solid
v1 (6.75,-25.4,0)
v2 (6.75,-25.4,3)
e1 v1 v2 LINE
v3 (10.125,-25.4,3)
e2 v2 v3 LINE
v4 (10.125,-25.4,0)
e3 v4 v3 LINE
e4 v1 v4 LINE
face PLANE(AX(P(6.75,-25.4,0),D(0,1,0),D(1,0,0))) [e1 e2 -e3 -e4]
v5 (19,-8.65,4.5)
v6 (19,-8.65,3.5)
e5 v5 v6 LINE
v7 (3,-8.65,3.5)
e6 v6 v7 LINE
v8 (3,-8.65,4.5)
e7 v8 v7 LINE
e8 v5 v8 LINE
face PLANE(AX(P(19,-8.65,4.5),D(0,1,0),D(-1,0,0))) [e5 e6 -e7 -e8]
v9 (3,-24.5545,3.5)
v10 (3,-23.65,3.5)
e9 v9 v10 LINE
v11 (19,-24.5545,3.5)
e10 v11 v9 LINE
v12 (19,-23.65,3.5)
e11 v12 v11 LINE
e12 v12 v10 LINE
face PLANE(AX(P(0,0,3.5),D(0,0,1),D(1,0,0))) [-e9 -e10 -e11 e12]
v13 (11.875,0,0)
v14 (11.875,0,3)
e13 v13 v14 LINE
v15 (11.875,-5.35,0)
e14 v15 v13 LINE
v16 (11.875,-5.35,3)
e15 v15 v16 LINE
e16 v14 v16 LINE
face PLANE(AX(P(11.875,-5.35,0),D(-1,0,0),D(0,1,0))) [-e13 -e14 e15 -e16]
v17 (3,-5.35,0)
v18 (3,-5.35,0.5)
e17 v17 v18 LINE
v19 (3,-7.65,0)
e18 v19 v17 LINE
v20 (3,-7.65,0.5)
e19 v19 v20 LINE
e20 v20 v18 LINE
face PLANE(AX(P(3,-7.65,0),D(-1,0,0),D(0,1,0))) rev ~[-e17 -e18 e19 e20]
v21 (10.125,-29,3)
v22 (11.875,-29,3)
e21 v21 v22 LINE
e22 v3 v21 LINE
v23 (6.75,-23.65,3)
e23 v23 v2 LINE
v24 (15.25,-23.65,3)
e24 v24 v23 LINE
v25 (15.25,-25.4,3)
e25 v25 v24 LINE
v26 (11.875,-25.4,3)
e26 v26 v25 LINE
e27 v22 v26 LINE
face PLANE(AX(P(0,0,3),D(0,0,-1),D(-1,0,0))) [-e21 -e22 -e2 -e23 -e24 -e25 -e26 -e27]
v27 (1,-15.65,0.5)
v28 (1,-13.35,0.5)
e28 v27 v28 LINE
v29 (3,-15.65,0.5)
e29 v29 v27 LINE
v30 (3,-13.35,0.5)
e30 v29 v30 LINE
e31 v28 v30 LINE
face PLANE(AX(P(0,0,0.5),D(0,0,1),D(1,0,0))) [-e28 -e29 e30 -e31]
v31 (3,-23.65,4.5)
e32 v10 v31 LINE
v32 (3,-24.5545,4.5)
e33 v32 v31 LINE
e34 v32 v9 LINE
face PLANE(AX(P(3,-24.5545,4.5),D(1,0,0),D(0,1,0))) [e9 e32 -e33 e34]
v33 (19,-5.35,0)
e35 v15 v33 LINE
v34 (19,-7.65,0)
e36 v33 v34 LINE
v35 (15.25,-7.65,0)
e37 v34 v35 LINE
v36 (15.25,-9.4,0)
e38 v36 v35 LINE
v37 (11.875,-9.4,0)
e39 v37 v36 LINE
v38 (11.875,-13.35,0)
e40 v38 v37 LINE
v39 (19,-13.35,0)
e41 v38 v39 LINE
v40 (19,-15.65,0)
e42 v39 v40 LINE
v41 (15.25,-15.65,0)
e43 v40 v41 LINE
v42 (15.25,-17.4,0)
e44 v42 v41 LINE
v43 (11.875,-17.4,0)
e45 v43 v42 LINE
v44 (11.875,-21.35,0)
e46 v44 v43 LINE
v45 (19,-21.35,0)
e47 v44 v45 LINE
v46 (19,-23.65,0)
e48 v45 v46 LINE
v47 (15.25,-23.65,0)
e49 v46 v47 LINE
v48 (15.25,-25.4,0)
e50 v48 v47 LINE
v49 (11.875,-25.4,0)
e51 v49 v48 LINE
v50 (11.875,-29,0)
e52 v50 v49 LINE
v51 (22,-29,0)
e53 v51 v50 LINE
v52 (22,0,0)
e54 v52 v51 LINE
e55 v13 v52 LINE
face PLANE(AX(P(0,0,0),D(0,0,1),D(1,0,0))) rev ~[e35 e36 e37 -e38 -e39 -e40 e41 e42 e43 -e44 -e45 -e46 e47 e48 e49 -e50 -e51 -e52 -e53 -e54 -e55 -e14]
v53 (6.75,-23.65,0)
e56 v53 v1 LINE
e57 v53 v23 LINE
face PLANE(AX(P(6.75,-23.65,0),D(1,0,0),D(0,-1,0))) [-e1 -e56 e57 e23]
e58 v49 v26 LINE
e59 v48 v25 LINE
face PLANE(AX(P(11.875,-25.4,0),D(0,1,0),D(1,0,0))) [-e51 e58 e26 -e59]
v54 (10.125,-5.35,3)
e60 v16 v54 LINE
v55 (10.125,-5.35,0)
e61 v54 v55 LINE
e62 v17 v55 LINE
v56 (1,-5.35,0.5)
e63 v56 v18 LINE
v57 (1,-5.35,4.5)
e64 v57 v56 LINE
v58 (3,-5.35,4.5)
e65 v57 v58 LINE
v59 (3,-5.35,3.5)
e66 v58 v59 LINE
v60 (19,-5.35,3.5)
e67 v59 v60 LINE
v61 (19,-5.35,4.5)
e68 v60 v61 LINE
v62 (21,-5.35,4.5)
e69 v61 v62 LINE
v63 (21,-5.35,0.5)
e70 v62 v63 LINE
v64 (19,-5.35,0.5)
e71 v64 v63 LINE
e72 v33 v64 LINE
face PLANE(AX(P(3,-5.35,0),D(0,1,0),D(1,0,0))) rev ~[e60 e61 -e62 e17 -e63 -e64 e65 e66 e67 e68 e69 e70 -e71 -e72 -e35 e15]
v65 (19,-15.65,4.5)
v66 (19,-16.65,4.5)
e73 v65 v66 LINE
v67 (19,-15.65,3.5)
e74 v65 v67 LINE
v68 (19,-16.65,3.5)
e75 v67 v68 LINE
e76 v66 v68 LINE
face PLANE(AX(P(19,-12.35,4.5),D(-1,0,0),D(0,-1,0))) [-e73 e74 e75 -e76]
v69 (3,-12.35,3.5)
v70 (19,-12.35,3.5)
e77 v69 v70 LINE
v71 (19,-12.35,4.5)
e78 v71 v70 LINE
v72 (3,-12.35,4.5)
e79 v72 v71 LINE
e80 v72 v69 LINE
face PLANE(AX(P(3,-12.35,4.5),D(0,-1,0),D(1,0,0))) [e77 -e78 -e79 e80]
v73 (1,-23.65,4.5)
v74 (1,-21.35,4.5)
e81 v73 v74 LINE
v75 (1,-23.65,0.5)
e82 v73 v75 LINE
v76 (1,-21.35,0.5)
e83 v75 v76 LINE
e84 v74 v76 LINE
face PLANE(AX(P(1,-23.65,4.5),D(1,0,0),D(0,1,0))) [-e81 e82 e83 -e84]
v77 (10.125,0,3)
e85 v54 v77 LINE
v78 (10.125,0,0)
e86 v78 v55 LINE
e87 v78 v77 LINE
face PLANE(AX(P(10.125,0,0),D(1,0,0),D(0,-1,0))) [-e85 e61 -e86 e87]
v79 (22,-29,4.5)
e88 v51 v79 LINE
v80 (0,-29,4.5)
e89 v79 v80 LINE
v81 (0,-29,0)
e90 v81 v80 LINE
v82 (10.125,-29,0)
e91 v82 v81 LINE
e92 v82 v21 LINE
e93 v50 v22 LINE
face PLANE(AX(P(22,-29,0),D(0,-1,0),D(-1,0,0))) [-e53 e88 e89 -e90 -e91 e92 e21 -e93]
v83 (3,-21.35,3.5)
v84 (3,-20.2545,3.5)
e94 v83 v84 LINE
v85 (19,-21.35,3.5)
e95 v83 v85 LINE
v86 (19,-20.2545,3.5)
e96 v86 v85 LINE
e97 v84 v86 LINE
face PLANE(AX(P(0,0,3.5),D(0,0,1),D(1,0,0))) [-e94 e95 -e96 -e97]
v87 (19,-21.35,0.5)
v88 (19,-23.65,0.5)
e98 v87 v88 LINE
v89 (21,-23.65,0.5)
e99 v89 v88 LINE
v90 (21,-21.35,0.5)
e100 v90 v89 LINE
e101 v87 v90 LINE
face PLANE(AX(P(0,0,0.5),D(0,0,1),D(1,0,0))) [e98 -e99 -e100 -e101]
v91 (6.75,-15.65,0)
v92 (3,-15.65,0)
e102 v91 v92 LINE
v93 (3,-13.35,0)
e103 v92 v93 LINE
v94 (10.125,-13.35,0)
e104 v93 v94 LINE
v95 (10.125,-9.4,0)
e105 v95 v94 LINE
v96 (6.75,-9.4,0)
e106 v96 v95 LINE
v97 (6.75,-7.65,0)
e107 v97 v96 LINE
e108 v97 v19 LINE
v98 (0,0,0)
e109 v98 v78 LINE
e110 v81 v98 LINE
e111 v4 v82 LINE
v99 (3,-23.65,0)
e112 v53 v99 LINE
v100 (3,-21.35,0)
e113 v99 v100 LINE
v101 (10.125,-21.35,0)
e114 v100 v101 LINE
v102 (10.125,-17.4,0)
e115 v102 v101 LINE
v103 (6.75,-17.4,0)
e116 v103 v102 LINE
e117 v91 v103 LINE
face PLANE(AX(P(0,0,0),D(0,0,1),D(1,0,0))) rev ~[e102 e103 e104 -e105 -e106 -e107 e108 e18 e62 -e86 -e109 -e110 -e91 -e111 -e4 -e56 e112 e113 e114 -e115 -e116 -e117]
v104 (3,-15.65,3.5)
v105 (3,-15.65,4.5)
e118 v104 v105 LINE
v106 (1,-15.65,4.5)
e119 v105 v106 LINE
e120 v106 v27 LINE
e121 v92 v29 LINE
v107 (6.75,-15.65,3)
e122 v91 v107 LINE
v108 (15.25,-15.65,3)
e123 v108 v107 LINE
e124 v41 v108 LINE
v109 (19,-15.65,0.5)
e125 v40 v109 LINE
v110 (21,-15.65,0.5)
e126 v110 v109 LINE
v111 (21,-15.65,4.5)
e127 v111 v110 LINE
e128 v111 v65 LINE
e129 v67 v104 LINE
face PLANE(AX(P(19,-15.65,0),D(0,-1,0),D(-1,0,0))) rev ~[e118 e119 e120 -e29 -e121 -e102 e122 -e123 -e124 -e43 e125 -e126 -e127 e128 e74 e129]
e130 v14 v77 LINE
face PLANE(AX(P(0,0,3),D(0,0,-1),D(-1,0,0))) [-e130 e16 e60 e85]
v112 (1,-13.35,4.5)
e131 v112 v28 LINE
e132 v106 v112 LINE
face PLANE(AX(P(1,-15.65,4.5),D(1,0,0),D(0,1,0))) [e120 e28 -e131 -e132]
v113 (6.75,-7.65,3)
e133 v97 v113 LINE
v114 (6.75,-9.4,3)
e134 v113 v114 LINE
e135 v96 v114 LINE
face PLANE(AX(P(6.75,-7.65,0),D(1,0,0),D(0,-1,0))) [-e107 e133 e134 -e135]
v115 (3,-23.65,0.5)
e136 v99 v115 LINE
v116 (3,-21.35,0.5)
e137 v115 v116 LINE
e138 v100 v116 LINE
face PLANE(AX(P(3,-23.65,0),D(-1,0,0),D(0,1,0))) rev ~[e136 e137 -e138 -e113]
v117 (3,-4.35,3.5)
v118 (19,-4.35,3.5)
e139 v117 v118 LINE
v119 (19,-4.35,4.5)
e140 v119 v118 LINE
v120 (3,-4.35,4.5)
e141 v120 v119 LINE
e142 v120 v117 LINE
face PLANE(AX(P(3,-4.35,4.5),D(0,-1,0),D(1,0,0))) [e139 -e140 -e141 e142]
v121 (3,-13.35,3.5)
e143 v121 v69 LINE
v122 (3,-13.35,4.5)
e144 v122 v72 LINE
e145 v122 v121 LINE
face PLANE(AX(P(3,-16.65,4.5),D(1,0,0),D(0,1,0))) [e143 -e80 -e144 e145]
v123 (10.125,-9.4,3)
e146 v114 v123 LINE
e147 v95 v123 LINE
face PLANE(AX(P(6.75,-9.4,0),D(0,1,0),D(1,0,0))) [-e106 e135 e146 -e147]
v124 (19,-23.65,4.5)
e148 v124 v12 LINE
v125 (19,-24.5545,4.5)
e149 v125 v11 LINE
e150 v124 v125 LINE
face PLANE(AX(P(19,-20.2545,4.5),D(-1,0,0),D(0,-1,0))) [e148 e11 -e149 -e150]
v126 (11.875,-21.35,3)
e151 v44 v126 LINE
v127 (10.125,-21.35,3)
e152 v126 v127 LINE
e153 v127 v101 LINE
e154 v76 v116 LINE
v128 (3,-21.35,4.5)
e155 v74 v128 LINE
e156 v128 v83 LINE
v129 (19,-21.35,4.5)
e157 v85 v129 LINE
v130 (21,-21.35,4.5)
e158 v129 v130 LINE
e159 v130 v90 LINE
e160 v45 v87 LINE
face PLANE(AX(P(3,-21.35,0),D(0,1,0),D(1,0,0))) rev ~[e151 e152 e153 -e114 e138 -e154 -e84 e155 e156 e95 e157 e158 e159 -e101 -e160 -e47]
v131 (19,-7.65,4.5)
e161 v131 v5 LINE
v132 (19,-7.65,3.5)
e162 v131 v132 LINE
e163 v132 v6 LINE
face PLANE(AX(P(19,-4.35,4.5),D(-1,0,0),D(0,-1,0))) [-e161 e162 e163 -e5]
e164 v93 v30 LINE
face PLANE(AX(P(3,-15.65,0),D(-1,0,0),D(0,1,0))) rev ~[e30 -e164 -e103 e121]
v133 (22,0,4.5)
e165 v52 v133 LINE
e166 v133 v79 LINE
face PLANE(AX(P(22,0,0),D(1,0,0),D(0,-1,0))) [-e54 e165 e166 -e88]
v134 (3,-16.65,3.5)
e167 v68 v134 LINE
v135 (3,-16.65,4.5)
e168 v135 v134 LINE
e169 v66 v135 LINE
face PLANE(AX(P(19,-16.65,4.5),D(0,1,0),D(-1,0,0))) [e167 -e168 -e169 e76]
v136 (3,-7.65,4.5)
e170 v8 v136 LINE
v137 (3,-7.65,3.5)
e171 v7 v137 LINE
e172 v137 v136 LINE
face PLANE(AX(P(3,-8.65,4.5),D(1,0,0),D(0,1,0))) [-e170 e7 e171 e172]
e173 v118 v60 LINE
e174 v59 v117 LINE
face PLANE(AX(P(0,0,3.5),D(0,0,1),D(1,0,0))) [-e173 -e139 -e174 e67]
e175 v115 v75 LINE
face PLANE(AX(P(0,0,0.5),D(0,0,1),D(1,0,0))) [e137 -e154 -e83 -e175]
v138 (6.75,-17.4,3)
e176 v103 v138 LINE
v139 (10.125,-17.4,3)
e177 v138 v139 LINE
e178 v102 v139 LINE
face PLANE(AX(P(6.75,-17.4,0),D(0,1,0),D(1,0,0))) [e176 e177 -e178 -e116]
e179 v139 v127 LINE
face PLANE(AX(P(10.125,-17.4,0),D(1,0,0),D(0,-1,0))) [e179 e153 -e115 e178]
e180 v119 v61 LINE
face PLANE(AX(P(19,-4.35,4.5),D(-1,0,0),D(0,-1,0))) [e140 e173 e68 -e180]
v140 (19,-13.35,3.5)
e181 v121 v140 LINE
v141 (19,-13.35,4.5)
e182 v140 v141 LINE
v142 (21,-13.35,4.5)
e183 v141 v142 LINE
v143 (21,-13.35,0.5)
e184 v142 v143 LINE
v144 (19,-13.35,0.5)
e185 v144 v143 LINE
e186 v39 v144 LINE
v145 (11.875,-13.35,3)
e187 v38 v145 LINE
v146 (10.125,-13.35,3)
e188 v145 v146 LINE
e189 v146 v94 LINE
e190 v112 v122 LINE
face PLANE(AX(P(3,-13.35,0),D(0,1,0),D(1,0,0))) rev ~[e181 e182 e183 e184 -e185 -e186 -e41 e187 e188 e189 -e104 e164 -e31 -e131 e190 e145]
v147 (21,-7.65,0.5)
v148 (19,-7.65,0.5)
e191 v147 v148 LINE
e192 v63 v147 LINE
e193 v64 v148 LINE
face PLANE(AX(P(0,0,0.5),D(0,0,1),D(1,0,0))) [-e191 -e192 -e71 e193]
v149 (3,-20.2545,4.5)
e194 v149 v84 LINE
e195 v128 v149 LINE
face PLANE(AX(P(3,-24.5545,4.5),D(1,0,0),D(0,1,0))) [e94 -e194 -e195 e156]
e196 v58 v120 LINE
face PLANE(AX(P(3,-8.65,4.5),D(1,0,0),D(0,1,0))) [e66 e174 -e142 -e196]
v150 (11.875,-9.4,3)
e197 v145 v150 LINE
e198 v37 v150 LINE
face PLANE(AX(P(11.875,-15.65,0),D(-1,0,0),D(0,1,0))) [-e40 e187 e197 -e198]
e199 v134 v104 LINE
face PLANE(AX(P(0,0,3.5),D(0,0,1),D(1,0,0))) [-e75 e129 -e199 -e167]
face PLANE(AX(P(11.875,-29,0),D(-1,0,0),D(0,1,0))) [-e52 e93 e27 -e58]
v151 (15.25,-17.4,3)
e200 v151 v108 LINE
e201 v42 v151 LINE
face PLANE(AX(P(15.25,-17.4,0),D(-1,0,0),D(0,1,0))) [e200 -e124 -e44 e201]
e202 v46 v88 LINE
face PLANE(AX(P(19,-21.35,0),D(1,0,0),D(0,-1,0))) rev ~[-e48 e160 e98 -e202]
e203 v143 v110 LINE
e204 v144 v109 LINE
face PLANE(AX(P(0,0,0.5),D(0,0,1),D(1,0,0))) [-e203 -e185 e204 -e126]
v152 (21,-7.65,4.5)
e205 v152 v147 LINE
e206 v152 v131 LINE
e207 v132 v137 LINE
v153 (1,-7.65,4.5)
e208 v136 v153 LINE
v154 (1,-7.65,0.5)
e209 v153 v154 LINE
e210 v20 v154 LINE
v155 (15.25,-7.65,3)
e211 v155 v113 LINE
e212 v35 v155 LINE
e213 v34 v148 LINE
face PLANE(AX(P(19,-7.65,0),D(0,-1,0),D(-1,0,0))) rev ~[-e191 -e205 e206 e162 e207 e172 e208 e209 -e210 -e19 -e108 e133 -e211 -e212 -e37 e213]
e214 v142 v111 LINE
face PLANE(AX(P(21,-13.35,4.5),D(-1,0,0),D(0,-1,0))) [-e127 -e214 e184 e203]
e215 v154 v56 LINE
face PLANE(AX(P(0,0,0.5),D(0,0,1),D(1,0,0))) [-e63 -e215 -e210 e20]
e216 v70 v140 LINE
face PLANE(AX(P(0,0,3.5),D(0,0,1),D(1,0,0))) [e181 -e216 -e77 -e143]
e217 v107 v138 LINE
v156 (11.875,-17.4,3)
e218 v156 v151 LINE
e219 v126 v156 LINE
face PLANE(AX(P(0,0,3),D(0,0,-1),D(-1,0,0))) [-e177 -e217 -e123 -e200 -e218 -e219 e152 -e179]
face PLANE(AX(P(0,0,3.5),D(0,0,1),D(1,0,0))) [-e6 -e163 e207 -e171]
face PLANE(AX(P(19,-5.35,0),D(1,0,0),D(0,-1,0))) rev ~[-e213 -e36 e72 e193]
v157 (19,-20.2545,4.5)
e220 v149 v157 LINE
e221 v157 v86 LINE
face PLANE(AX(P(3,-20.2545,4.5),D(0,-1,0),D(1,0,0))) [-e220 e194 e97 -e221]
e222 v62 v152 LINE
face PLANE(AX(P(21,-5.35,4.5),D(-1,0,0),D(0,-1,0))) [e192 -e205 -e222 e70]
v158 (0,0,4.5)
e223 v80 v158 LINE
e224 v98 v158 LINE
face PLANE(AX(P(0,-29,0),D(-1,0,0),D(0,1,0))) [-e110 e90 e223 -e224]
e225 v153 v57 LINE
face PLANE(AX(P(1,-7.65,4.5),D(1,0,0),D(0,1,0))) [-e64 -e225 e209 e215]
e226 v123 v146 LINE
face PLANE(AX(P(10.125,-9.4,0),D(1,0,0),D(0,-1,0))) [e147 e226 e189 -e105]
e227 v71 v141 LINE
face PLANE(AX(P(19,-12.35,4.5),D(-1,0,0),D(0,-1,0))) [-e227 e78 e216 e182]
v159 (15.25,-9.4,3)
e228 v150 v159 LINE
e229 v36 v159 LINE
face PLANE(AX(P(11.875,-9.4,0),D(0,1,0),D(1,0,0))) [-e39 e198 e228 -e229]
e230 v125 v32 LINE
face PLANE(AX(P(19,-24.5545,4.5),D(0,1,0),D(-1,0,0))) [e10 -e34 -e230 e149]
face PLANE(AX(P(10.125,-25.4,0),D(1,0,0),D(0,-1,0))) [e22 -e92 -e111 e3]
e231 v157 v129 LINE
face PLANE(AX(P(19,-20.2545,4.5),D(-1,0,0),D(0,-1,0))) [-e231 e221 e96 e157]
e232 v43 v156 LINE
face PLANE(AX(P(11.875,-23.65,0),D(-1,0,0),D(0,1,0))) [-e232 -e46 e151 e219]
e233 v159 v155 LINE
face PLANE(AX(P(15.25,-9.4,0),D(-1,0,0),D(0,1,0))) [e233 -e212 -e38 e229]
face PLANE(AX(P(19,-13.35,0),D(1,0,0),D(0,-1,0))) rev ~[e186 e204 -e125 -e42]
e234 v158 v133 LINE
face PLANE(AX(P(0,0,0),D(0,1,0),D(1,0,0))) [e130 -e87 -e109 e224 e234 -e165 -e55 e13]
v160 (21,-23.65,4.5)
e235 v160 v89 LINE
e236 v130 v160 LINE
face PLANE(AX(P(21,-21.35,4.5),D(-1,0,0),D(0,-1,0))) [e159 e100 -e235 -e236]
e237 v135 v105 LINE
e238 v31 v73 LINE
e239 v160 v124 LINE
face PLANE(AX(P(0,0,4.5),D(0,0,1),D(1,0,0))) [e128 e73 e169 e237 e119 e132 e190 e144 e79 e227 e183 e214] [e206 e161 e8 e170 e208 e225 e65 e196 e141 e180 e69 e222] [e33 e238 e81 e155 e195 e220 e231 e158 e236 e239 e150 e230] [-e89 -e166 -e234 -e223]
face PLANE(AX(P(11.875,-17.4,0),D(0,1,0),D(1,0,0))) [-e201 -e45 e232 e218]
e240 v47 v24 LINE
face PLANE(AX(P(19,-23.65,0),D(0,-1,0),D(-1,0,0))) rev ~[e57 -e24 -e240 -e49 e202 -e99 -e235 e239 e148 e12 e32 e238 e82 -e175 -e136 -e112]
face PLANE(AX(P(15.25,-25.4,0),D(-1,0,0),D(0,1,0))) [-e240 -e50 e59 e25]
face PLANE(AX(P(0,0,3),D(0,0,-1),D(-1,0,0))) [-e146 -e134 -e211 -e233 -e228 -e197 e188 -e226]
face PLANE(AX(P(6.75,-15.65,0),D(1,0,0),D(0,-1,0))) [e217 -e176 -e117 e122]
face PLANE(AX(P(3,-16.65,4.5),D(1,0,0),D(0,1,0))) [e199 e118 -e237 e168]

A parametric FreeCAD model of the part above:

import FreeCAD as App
import Part
import Sketcher
from FreeCAD import Vector

doc = App.newDocument("Part")
body = doc.addObject("PartDesign::Body", "Body")

sketch1 = body.newObject("Sketcher::SketchObject", "Sketch")
sketch1.AttachmentSupport = (doc.getObject("XY_Plane"), [""])
sketch1.MapMode = "FlatFace"
sketch1.addGeometry(Part.LineSegment(Vector(22, 0, 0), Vector(0, 0, 0)), False)
sketch1.addGeometry(Part.LineSegment(Vector(0, 0, 0), Vector(0, -29, 0)), False)
sketch1.addGeometry(Part.LineSegment(Vector(0, -29, 0), Vector(22, -29, 0)), False)
sketch1.addGeometry(Part.LineSegment(Vector(22, -29, 0), Vector(22, 0, 0)), False)
sketch1.addGeometry(Part.LineSegment(Vector(3, -23.6, 0), Vector(3, -21.4, 0)), False)
sketch1.addGeometry(Part.LineSegment(Vector(3, -21.4, 0), Vector(19, -21.4, 0)), False)
sketch1.addGeometry(Part.LineSegment(Vector(19, -21.4, 0), Vector(19, -23.6, 0)), False)
sketch1.addGeometry(Part.LineSegment(Vector(19, -23.6, 0), Vector(3, -23.6, 0)), False)
sketch1.addGeometry(Part.LineSegment(Vector(3, -15.7, 0), Vector(3, -13.3, 0)), False)
sketch1.addGeometry(Part.LineSegment(Vector(3, -13.3, 0), Vector(19, -13.3, 0)), False)
sketch1.addGeometry(Part.LineSegment(Vector(19, -13.3, 0), Vector(19, -15.7, 0)), False)
sketch1.addGeometry(Part.LineSegment(Vector(19, -15.7, 0), Vector(3, -15.7, 0)), False)
sketch1.addGeometry(Part.LineSegment(Vector(3, -7.7, 0), Vector(3, -5.3, 0)), False)
sketch1.addGeometry(Part.LineSegment(Vector(3, -5.3, 0), Vector(19, -5.3, 0)), False)
sketch1.addGeometry(Part.LineSegment(Vector(19, -5.3, 0), Vector(19, -7.7, 0)), False)
sketch1.addGeometry(Part.LineSegment(Vector(19, -7.7, 0), Vector(3, -7.7, 0)), False)
sketch1.addConstraint(Sketcher.Constraint("Coincident", 0, 2, 1, 1))
sketch1.addConstraint(Sketcher.Constraint("Coincident", 1, 2, 2, 1))
sketch1.addConstraint(Sketcher.Constraint("Coincident", 2, 2, 3, 1))
sketch1.addConstraint(Sketcher.Constraint("Coincident", 3, 2, 0, 1))
sketch1.addConstraint(Sketcher.Constraint("Coincident", 4, 2, 5, 1))
sketch1.addConstraint(Sketcher.Constraint("Coincident", 5, 2, 6, 1))
sketch1.addConstraint(Sketcher.Constraint("Coincident", 6, 2, 7, 1))
sketch1.addConstraint(Sketcher.Constraint("Coincident", 7, 2, 4, 1))
sketch1.addConstraint(Sketcher.Constraint("Coincident", 8, 2, 9, 1))
sketch1.addConstraint(Sketcher.Constraint("Coincident", 9, 2, 10, 1))
sketch1.addConstraint(Sketcher.Constraint("Coincident", 10, 2, 11, 1))
sketch1.addConstraint(Sketcher.Constraint("Coincident", 11, 2, 8, 1))
sketch1.addConstraint(Sketcher.Constraint("Coincident", 12, 2, 13, 1))
sketch1.addConstraint(Sketcher.Constraint("Coincident", 13, 2, 14, 1))
sketch1.addConstraint(Sketcher.Constraint("Coincident", 14, 2, 15, 1))
sketch1.addConstraint(Sketcher.Constraint("Coincident", 15, 2, 12, 1))
sketch1.addConstraint(Sketcher.Constraint("Horizontal", 0))
sketch1.addConstraint(Sketcher.Constraint("Vertical", 1))
sketch1.addConstraint(Sketcher.Constraint("Horizontal", 2))
sketch1.addConstraint(Sketcher.Constraint("Vertical", 3))
sketch1.addConstraint(Sketcher.Constraint("Vertical", 4))
sketch1.addConstraint(Sketcher.Constraint("Horizontal", 5))
sketch1.addConstraint(Sketcher.Constraint("Vertical", 6))
sketch1.addConstraint(Sketcher.Constraint("Horizontal", 7))
sketch1.addConstraint(Sketcher.Constraint("Vertical", 8))
sketch1.addConstraint(Sketcher.Constraint("Horizontal", 9))
sketch1.addConstraint(Sketcher.Constraint("Vertical", 10))
sketch1.addConstraint(Sketcher.Constraint("Horizontal", 11))
sketch1.addConstraint(Sketcher.Constraint("Vertical", 12))
sketch1.addConstraint(Sketcher.Constraint("Horizontal", 13))
sketch1.addConstraint(Sketcher.Constraint("Vertical", 14))
sketch1.addConstraint(Sketcher.Constraint("Horizontal", 15))
sketch1.addConstraint(Sketcher.Constraint("Coincident", 0, 2, -1, 1))
sketch1.addConstraint(Sketcher.Constraint("Vertical", 7, 2, 8, 2))
sketch1.addConstraint(Sketcher.Constraint("Vertical", 6, 2, 9, 2))
sketch1.addConstraint(Sketcher.Constraint("Vertical", 11, 2, 12, 2))
sketch1.addConstraint(Sketcher.Constraint("Vertical", 10, 2, 13, 2))
sketch1.addConstraint(Sketcher.Constraint("Equal", 6, 8))
sketch1.addConstraint(Sketcher.Constraint("Equal", 10, 12))
sketch1.addConstraint(Sketcher.Constraint("DistanceX", 0, 2, 0, 1, 22.0))
sketch1.addConstraint(Sketcher.Constraint("DistanceX", 5, 1, 5, 2, 16.0))
sketch1.addConstraint(Sketcher.Constraint("DistanceY", 1, 2, 1, 1, 29.0))
sketch1.addConstraint(Sketcher.Constraint("DistanceY", 4, 1, 4, 2, 2.3))
sketch1.addConstraint(Sketcher.Constraint("DistanceY", 4, 2, 8, 2, 8.0))
sketch1.addConstraint(Sketcher.Constraint("DistanceY", 8, 2, 12, 2, 8.0))
sketch1.addConstraint(Sketcher.Constraint("DistanceX", -1, 1, 4, 2, 3.0))
sketch1.addConstraint(Sketcher.Constraint("DistanceY", 4, 2, -1, 1, 21.35))
pad1 = body.newObject("PartDesign::Pad", "Pad")
pad1.Profile = sketch1
pad1.Length = 4.5

sketch2 = body.newObject("Sketcher::SketchObject", "Sketch001")
sketch2.AttachmentSupport = (doc.getObject("XY_Plane"), [""])
sketch2.MapMode = "FlatFace"
sketch2.AttachmentOffset = App.Placement(Vector(0, 0, 4.5), App.Rotation())
sketch2.addGeometry(Part.LineSegment(Vector(21, -5.3, 0), Vector(1, -5.3, 0)), False)
sketch2.addGeometry(Part.LineSegment(Vector(1, -5.3, 0), Vector(1, -7.7, 0)), False)
sketch2.addGeometry(Part.LineSegment(Vector(1, -7.7, 0), Vector(21, -7.7, 0)), False)
sketch2.addGeometry(Part.LineSegment(Vector(21, -7.7, 0), Vector(21, -5.3, 0)), False)
sketch2.addGeometry(Part.LineSegment(Vector(21, -13.3, 0), Vector(1, -13.3, 0)), False)
sketch2.addGeometry(Part.LineSegment(Vector(1, -13.3, 0), Vector(1, -15.7, 0)), False)
sketch2.addGeometry(Part.LineSegment(Vector(1, -15.7, 0), Vector(21, -15.7, 0)), False)
sketch2.addGeometry(Part.LineSegment(Vector(21, -15.7, 0), Vector(21, -13.3, 0)), False)
sketch2.addGeometry(Part.LineSegment(Vector(21, -21.4, 0), Vector(1, -21.4, 0)), False)
sketch2.addGeometry(Part.LineSegment(Vector(1, -21.4, 0), Vector(1, -23.6, 0)), False)
sketch2.addGeometry(Part.LineSegment(Vector(1, -23.6, 0), Vector(21, -23.6, 0)), False)
sketch2.addGeometry(Part.LineSegment(Vector(21, -23.6, 0), Vector(21, -21.4, 0)), False)
sketch2.addConstraint(Sketcher.Constraint("Coincident", 0, 2, 1, 1))
sketch2.addConstraint(Sketcher.Constraint("Coincident", 1, 2, 2, 1))
sketch2.addConstraint(Sketcher.Constraint("Coincident", 2, 2, 3, 1))
sketch2.addConstraint(Sketcher.Constraint("Coincident", 3, 2, 0, 1))
sketch2.addConstraint(Sketcher.Constraint("Coincident", 4, 2, 5, 1))
sketch2.addConstraint(Sketcher.Constraint("Coincident", 5, 2, 6, 1))
sketch2.addConstraint(Sketcher.Constraint("Coincident", 6, 2, 7, 1))
sketch2.addConstraint(Sketcher.Constraint("Coincident", 7, 2, 4, 1))
sketch2.addConstraint(Sketcher.Constraint("Coincident", 8, 2, 9, 1))
sketch2.addConstraint(Sketcher.Constraint("Coincident", 9, 2, 10, 1))
sketch2.addConstraint(Sketcher.Constraint("Coincident", 10, 2, 11, 1))
sketch2.addConstraint(Sketcher.Constraint("Coincident", 11, 2, 8, 1))
sketch2.addConstraint(Sketcher.Constraint("Horizontal", 0))
sketch2.addConstraint(Sketcher.Constraint("Vertical", 1))
sketch2.addConstraint(Sketcher.Constraint("Horizontal", 2))
sketch2.addConstraint(Sketcher.Constraint("Vertical", 3))
sketch2.addConstraint(Sketcher.Constraint("Horizontal", 4))
sketch2.addConstraint(Sketcher.Constraint("Vertical", 5))
sketch2.addConstraint(Sketcher.Constraint("Horizontal", 6))
sketch2.addConstraint(Sketcher.Constraint("Vertical", 7))
sketch2.addConstraint(Sketcher.Constraint("Horizontal", 8))
sketch2.addConstraint(Sketcher.Constraint("Vertical", 9))
sketch2.addConstraint(Sketcher.Constraint("Horizontal", 10))
sketch2.addConstraint(Sketcher.Constraint("Vertical", 11))
sketch2.addConstraint(Sketcher.Constraint("Vertical", 1, 2, 4, 2))
sketch2.addConstraint(Sketcher.Constraint("Vertical", 3, 2, 6, 2))
sketch2.addConstraint(Sketcher.Constraint("Vertical", 5, 2, 8, 2))
sketch2.addConstraint(Sketcher.Constraint("Vertical", 7, 2, 10, 2))
sketch2.addConstraint(Sketcher.Constraint("Equal", 3, 5))
sketch2.addConstraint(Sketcher.Constraint("Equal", 7, 9))
sketch2.addConstraint(Sketcher.Constraint("DistanceX", 0, 2, 0, 1, 20.0))
sketch2.addConstraint(Sketcher.Constraint("DistanceY", 1, 2, 1, 1, 2.3))
sketch2.addConstraint(Sketcher.Constraint("DistanceX", -1, 1, 0, 2, 1.0))
sketch2.addConstraint(Sketcher.Constraint("DistanceY", 4, 2, 0, 2, 8.0))
sketch2.addConstraint(Sketcher.Constraint("DistanceY", 8, 2, 4, 2, 8.0))
sketch2.addConstraint(Sketcher.Constraint("DistanceY", 0, 2, -1, 1, 5.35))
pocket1 = body.newObject("PartDesign::Pocket", "Pocket")
pocket1.Profile = sketch2
pocket1.Length = 4

sketch3 = body.newObject("Sketcher::SketchObject", "Sketch002")
sketch3.AttachmentSupport = (doc.getObject("XY_Plane"), [""])
sketch3.MapMode = "FlatFace"
sketch3.AttachmentOffset = App.Placement(Vector(0, 0, 4.5), App.Rotation())
sketch3.addGeometry(Part.LineSegment(Vector(19, -4.3, 0), Vector(3, -4.3, 0)), False)
sketch3.addGeometry(Part.LineSegment(Vector(3, -4.3, 0), Vector(3, -8.7, 0)), False)
sketch3.addGeometry(Part.LineSegment(Vector(3, -8.7, 0), Vector(19, -8.7, 0)), False)
sketch3.addGeometry(Part.LineSegment(Vector(19, -8.7, 0), Vector(19, -4.3, 0)), False)
sketch3.addGeometry(Part.LineSegment(Vector(19, -12.3, 0), Vector(3, -12.3, 0)), False)
sketch3.addGeometry(Part.LineSegment(Vector(3, -12.3, 0), Vector(3, -16.6, 0)), False)
sketch3.addGeometry(Part.LineSegment(Vector(3, -16.6, 0), Vector(19, -16.6, 0)), False)
sketch3.addGeometry(Part.LineSegment(Vector(19, -16.6, 0), Vector(19, -12.3, 0)), False)
sketch3.addGeometry(Part.LineSegment(Vector(19, -20.3, 0), Vector(3, -20.3, 0)), False)
sketch3.addGeometry(Part.LineSegment(Vector(3, -20.3, 0), Vector(3, -24.6, 0)), False)
sketch3.addGeometry(Part.LineSegment(Vector(3, -24.6, 0), Vector(19, -24.6, 0)), False)
sketch3.addGeometry(Part.LineSegment(Vector(19, -24.6, 0), Vector(19, -20.3, 0)), False)
sketch3.addConstraint(Sketcher.Constraint("Coincident", 0, 2, 1, 1))
sketch3.addConstraint(Sketcher.Constraint("Coincident", 1, 2, 2, 1))
sketch3.addConstraint(Sketcher.Constraint("Coincident", 2, 2, 3, 1))
sketch3.addConstraint(Sketcher.Constraint("Coincident", 3, 2, 0, 1))
sketch3.addConstraint(Sketcher.Constraint("Coincident", 4, 2, 5, 1))
sketch3.addConstraint(Sketcher.Constraint("Coincident", 5, 2, 6, 1))
sketch3.addConstraint(Sketcher.Constraint("Coincident", 6, 2, 7, 1))
sketch3.addConstraint(Sketcher.Constraint("Coincident", 7, 2, 4, 1))
sketch3.addConstraint(Sketcher.Constraint("Coincident", 8, 2, 9, 1))
sketch3.addConstraint(Sketcher.Constraint("Coincident", 9, 2, 10, 1))
sketch3.addConstraint(Sketcher.Constraint("Coincident", 10, 2, 11, 1))
sketch3.addConstraint(Sketcher.Constraint("Coincident", 11, 2, 8, 1))
sketch3.addConstraint(Sketcher.Constraint("Horizontal", 0))
sketch3.addConstraint(Sketcher.Constraint("Vertical", 1))
sketch3.addConstraint(Sketcher.Constraint("Horizontal", 2))
sketch3.addConstraint(Sketcher.Constraint("Vertical", 3))
sketch3.addConstraint(Sketcher.Constraint("Horizontal", 4))
sketch3.addConstraint(Sketcher.Constraint("Vertical", 5))
sketch3.addConstraint(Sketcher.Constraint("Horizontal", 6))
sketch3.addConstraint(Sketcher.Constraint("Vertical", 7))
sketch3.addConstraint(Sketcher.Constraint("Horizontal", 8))
sketch3.addConstraint(Sketcher.Constraint("Vertical", 9))
sketch3.addConstraint(Sketcher.Constraint("Horizontal", 10))
sketch3.addConstraint(Sketcher.Constraint("Vertical", 11))
sketch3.addConstraint(Sketcher.Constraint("Vertical", 1, 2, 4, 2))
sketch3.addConstraint(Sketcher.Constraint("Vertical", 3, 2, 6, 2))
sketch3.addConstraint(Sketcher.Constraint("Vertical", 5, 2, 8, 2))
sketch3.addConstraint(Sketcher.Constraint("Vertical", 7, 2, 10, 2))
sketch3.addConstraint(Sketcher.Constraint("Equal", 3, 5))
sketch3.addConstraint(Sketcher.Constraint("Equal", 7, 9))
sketch3.addConstraint(Sketcher.Constraint("DistanceX", 0, 2, 0, 1, 16.0))
sketch3.addConstraint(Sketcher.Constraint("DistanceY", 1, 2, 1, 1, 4.3))
sketch3.addConstraint(Sketcher.Constraint("DistanceX", -1, 1, 0, 2, 3.0))
sketch3.addConstraint(Sketcher.Constraint("DistanceY", 4, 2, 0, 2, 8.0))
sketch3.addConstraint(Sketcher.Constraint("DistanceY", 0, 2, -1, 1, 4.35))
sketch3.addConstraint(Sketcher.Constraint("DistanceY", 8, 2, -1, 1, 20.2545))
pocket2 = body.newObject("PartDesign::Pocket", "Pocket001")
pocket2.Profile = sketch3
pocket2.Length = 1

sketch4 = body.newObject("Sketcher::SketchObject", "Sketch003")
sketch4.AttachmentSupport = (doc.getObject("XY_Plane"), [""])
sketch4.MapMode = "FlatFace"
sketch4.addGeometry(Part.LineSegment(Vector(10.1, 0, 0), Vector(11.9, 0, 0)), False)
sketch4.addGeometry(Part.LineSegment(Vector(11.9, 0, 0), Vector(11.9, -7.7, 0)), False)
sketch4.addGeometry(Part.LineSegment(Vector(11.9, -7.7, 0), Vector(15.2, -7.7, 0)), False)
sketch4.addGeometry(Part.LineSegment(Vector(15.2, -7.7, 0), Vector(15.2, -9.4, 0)), False)
sketch4.addGeometry(Part.LineSegment(Vector(15.2, -9.4, 0), Vector(11.9, -9.4, 0)), False)
sketch4.addGeometry(Part.LineSegment(Vector(11.9, -9.4, 0), Vector(11.9, -15.7, 0)), False)
sketch4.addGeometry(Part.LineSegment(Vector(11.9, -15.7, 0), Vector(15.2, -15.7, 0)), False)
sketch4.addGeometry(Part.LineSegment(Vector(15.2, -15.7, 0), Vector(15.2, -17.4, 0)), False)
sketch4.addGeometry(Part.LineSegment(Vector(15.2, -17.4, 0), Vector(11.9, -17.4, 0)), False)
sketch4.addGeometry(Part.LineSegment(Vector(11.9, -17.4, 0), Vector(11.9, -23.6, 0)), False)
sketch4.addGeometry(Part.LineSegment(Vector(11.9, -23.6, 0), Vector(15.2, -23.6, 0)), False)
sketch4.addGeometry(Part.LineSegment(Vector(15.2, -23.6, 0), Vector(15.2, -25.4, 0)), False)
sketch4.addGeometry(Part.LineSegment(Vector(15.2, -25.4, 0), Vector(11.9, -25.4, 0)), False)
sketch4.addGeometry(Part.LineSegment(Vector(11.9, -25.4, 0), Vector(11.9, -29, 0)), False)
sketch4.addGeometry(Part.LineSegment(Vector(11.9, -29, 0), Vector(10.1, -29, 0)), False)
sketch4.addGeometry(Part.LineSegment(Vector(10.1, -29, 0), Vector(10.1, -25.4, 0)), False)
sketch4.addGeometry(Part.LineSegment(Vector(10.1, -25.4, 0), Vector(6.8, -25.4, 0)), False)
sketch4.addGeometry(Part.LineSegment(Vector(6.8, -25.4, 0), Vector(6.8, -23.6, 0)), False)
sketch4.addGeometry(Part.LineSegment(Vector(6.8, -23.6, 0), Vector(10.1, -23.6, 0)), False)
sketch4.addGeometry(Part.LineSegment(Vector(10.1, -23.6, 0), Vector(10.1, -17.4, 0)), False)
sketch4.addGeometry(Part.LineSegment(Vector(10.1, -17.4, 0), Vector(6.8, -17.4, 0)), False)
sketch4.addGeometry(Part.LineSegment(Vector(6.8, -17.4, 0), Vector(6.8, -15.7, 0)), False)
sketch4.addGeometry(Part.LineSegment(Vector(6.8, -15.7, 0), Vector(10.1, -15.7, 0)), False)
sketch4.addGeometry(Part.LineSegment(Vector(10.1, -15.7, 0), Vector(10.1, -9.4, 0)), False)
sketch4.addGeometry(Part.LineSegment(Vector(10.1, -9.4, 0), Vector(6.8, -9.4, 0)), False)
sketch4.addGeometry(Part.LineSegment(Vector(6.8, -9.4, 0), Vector(6.8, -7.7, 0)), False)
sketch4.addGeometry(Part.LineSegment(Vector(6.8, -7.7, 0), Vector(10.1, -7.7, 0)), False)
sketch4.addGeometry(Part.LineSegment(Vector(10.1, -7.7, 0), Vector(10.1, 0, 0)), False)
sketch4.addConstraint(Sketcher.Constraint("Coincident", 0, 2, 1, 1))
sketch4.addConstraint(Sketcher.Constraint("Coincident", 1, 2, 2, 1))
sketch4.addConstraint(Sketcher.Constraint("Coincident", 2, 2, 3, 1))
sketch4.addConstraint(Sketcher.Constraint("Coincident", 3, 2, 4, 1))
sketch4.addConstraint(Sketcher.Constraint("Coincident", 4, 2, 5, 1))
sketch4.addConstraint(Sketcher.Constraint("Coincident", 5, 2, 6, 1))
sketch4.addConstraint(Sketcher.Constraint("Coincident", 6, 2, 7, 1))
sketch4.addConstraint(Sketcher.Constraint("Coincident", 7, 2, 8, 1))
sketch4.addConstraint(Sketcher.Constraint("Coincident", 8, 2, 9, 1))
sketch4.addConstraint(Sketcher.Constraint("Coincident", 9, 2, 10, 1))
sketch4.addConstraint(Sketcher.Constraint("Coincident", 10, 2, 11, 1))
sketch4.addConstraint(Sketcher.Constraint("Coincident", 11, 2, 12, 1))
sketch4.addConstraint(Sketcher.Constraint("Coincident", 12, 2, 13, 1))
sketch4.addConstraint(Sketcher.Constraint("Coincident", 13, 2, 14, 1))
sketch4.addConstraint(Sketcher.Constraint("Coincident", 14, 2, 15, 1))
sketch4.addConstraint(Sketcher.Constraint("Coincident", 15, 2, 16, 1))
sketch4.addConstraint(Sketcher.Constraint("Coincident", 16, 2, 17, 1))
sketch4.addConstraint(Sketcher.Constraint("Coincident", 17, 2, 18, 1))
sketch4.addConstraint(Sketcher.Constraint("Coincident", 18, 2, 19, 1))
sketch4.addConstraint(Sketcher.Constraint("Coincident", 19, 2, 20, 1))
sketch4.addConstraint(Sketcher.Constraint("Coincident", 20, 2, 21, 1))
sketch4.addConstraint(Sketcher.Constraint("Coincident", 21, 2, 22, 1))
sketch4.addConstraint(Sketcher.Constraint("Coincident", 22, 2, 23, 1))
sketch4.addConstraint(Sketcher.Constraint("Coincident", 23, 2, 24, 1))
sketch4.addConstraint(Sketcher.Constraint("Coincident", 24, 2, 25, 1))
sketch4.addConstraint(Sketcher.Constraint("Coincident", 25, 2, 26, 1))
sketch4.addConstraint(Sketcher.Constraint("Coincident", 26, 2, 27, 1))
sketch4.addConstraint(Sketcher.Constraint("Coincident", 27, 2, 0, 1))
sketch4.addConstraint(Sketcher.Constraint("Horizontal", 0))
sketch4.addConstraint(Sketcher.Constraint("Vertical", 1))
sketch4.addConstraint(Sketcher.Constraint("Horizontal", 2))
sketch4.addConstraint(Sketcher.Constraint("Vertical", 3))
sketch4.addConstraint(Sketcher.Constraint("Horizontal", 4))
sketch4.addConstraint(Sketcher.Constraint("Vertical", 5))
sketch4.addConstraint(Sketcher.Constraint("Horizontal", 6))
sketch4.addConstraint(Sketcher.Constraint("Vertical", 7))
sketch4.addConstraint(Sketcher.Constraint("Horizontal", 8))
sketch4.addConstraint(Sketcher.Constraint("Vertical", 9))
sketch4.addConstraint(Sketcher.Constraint("Horizontal", 10))
sketch4.addConstraint(Sketcher.Constraint("Vertical", 11))
sketch4.addConstraint(Sketcher.Constraint("Horizontal", 12))
sketch4.addConstraint(Sketcher.Constraint("Vertical", 13))
sketch4.addConstraint(Sketcher.Constraint("Horizontal", 14))
sketch4.addConstraint(Sketcher.Constraint("Vertical", 15))
sketch4.addConstraint(Sketcher.Constraint("Horizontal", 16))
sketch4.addConstraint(Sketcher.Constraint("Vertical", 17))
sketch4.addConstraint(Sketcher.Constraint("Horizontal", 18))
sketch4.addConstraint(Sketcher.Constraint("Vertical", 19))
sketch4.addConstraint(Sketcher.Constraint("Horizontal", 20))
sketch4.addConstraint(Sketcher.Constraint("Vertical", 21))
sketch4.addConstraint(Sketcher.Constraint("Horizontal", 22))
sketch4.addConstraint(Sketcher.Constraint("Vertical", 23))
sketch4.addConstraint(Sketcher.Constraint("Horizontal", 24))
sketch4.addConstraint(Sketcher.Constraint("Vertical", 25))
sketch4.addConstraint(Sketcher.Constraint("Horizontal", 26))
sketch4.addConstraint(Sketcher.Constraint("Vertical", 27))
sketch4.addConstraint(Sketcher.Constraint("PointOnObject", 0, 2, -1))
sketch4.addConstraint(Sketcher.Constraint("Horizontal", 12, 2, 15, 2))
sketch4.addConstraint(Sketcher.Constraint("Horizontal", 10, 2, 17, 2))
sketch4.addConstraint(Sketcher.Constraint("Horizontal", 8, 2, 19, 2))
sketch4.addConstraint(Sketcher.Constraint("Horizontal", 6, 2, 21, 2))
sketch4.addConstraint(Sketcher.Constraint("Horizontal", 4, 2, 23, 2))
sketch4.addConstraint(Sketcher.Constraint("Horizontal", 2, 2, 25, 2))
sketch4.addConstraint(Sketcher.Constraint("Vertical", 1, 2, 4, 2))
sketch4.addConstraint(Sketcher.Constraint("Vertical", 3, 2, 6, 2))
sketch4.addConstraint(Sketcher.Constraint("Vertical", 5, 2, 8, 2))
sketch4.addConstraint(Sketcher.Constraint("Vertical", 7, 2, 10, 2))
sketch4.addConstraint(Sketcher.Constraint("Vertical", 9, 2, 12, 2))
sketch4.addConstraint(Sketcher.Constraint("Vertical", 15, 2, 18, 2))
sketch4.addConstraint(Sketcher.Constraint("Vertical", 17, 2, 20, 2))
sketch4.addConstraint(Sketcher.Constraint("Vertical", 19, 2, 22, 2))
sketch4.addConstraint(Sketcher.Constraint("Vertical", 21, 2, 24, 2))
sketch4.addConstraint(Sketcher.Constraint("Vertical", 23, 2, 26, 2))
sketch4.addConstraint(Sketcher.Constraint("Equal", 12, 16))
sketch4.addConstraint(Sketcher.Constraint("Equal", 14, 3))
sketch4.addConstraint(Sketcher.Constraint("Equal", 3, 7))
sketch4.addConstraint(Sketcher.Constraint("Equal", 5, 9))
sketch4.addConstraint(Sketcher.Constraint("Equal", 7, 11))
sketch4.addConstraint(Sketcher.Constraint("DistanceX", 0, 1, 0, 2, 1.75))
sketch4.addConstraint(Sketcher.Constraint("DistanceY", 13, 2, 13, 1, 3.6))
sketch4.addConstraint(Sketcher.Constraint("DistanceY", 13, 2, -1, 1, 29.0))
sketch4.addConstraint(Sketcher.Constraint("DistanceY", 5, 2, 1, 2, 8.0))
sketch4.addConstraint(Sketcher.Constraint("DistanceX", 2, 1, 2, 2, 3.375))
sketch4.addConstraint(Sketcher.Constraint("DistanceX", -1, 1, 2, 2, 15.25))
pocket3 = body.newObject("PartDesign::Pocket", "Pocket002")
pocket3.Profile = sketch4
pocket3.Length = 3
pocket3.Reversed = True

doc.recompute()
